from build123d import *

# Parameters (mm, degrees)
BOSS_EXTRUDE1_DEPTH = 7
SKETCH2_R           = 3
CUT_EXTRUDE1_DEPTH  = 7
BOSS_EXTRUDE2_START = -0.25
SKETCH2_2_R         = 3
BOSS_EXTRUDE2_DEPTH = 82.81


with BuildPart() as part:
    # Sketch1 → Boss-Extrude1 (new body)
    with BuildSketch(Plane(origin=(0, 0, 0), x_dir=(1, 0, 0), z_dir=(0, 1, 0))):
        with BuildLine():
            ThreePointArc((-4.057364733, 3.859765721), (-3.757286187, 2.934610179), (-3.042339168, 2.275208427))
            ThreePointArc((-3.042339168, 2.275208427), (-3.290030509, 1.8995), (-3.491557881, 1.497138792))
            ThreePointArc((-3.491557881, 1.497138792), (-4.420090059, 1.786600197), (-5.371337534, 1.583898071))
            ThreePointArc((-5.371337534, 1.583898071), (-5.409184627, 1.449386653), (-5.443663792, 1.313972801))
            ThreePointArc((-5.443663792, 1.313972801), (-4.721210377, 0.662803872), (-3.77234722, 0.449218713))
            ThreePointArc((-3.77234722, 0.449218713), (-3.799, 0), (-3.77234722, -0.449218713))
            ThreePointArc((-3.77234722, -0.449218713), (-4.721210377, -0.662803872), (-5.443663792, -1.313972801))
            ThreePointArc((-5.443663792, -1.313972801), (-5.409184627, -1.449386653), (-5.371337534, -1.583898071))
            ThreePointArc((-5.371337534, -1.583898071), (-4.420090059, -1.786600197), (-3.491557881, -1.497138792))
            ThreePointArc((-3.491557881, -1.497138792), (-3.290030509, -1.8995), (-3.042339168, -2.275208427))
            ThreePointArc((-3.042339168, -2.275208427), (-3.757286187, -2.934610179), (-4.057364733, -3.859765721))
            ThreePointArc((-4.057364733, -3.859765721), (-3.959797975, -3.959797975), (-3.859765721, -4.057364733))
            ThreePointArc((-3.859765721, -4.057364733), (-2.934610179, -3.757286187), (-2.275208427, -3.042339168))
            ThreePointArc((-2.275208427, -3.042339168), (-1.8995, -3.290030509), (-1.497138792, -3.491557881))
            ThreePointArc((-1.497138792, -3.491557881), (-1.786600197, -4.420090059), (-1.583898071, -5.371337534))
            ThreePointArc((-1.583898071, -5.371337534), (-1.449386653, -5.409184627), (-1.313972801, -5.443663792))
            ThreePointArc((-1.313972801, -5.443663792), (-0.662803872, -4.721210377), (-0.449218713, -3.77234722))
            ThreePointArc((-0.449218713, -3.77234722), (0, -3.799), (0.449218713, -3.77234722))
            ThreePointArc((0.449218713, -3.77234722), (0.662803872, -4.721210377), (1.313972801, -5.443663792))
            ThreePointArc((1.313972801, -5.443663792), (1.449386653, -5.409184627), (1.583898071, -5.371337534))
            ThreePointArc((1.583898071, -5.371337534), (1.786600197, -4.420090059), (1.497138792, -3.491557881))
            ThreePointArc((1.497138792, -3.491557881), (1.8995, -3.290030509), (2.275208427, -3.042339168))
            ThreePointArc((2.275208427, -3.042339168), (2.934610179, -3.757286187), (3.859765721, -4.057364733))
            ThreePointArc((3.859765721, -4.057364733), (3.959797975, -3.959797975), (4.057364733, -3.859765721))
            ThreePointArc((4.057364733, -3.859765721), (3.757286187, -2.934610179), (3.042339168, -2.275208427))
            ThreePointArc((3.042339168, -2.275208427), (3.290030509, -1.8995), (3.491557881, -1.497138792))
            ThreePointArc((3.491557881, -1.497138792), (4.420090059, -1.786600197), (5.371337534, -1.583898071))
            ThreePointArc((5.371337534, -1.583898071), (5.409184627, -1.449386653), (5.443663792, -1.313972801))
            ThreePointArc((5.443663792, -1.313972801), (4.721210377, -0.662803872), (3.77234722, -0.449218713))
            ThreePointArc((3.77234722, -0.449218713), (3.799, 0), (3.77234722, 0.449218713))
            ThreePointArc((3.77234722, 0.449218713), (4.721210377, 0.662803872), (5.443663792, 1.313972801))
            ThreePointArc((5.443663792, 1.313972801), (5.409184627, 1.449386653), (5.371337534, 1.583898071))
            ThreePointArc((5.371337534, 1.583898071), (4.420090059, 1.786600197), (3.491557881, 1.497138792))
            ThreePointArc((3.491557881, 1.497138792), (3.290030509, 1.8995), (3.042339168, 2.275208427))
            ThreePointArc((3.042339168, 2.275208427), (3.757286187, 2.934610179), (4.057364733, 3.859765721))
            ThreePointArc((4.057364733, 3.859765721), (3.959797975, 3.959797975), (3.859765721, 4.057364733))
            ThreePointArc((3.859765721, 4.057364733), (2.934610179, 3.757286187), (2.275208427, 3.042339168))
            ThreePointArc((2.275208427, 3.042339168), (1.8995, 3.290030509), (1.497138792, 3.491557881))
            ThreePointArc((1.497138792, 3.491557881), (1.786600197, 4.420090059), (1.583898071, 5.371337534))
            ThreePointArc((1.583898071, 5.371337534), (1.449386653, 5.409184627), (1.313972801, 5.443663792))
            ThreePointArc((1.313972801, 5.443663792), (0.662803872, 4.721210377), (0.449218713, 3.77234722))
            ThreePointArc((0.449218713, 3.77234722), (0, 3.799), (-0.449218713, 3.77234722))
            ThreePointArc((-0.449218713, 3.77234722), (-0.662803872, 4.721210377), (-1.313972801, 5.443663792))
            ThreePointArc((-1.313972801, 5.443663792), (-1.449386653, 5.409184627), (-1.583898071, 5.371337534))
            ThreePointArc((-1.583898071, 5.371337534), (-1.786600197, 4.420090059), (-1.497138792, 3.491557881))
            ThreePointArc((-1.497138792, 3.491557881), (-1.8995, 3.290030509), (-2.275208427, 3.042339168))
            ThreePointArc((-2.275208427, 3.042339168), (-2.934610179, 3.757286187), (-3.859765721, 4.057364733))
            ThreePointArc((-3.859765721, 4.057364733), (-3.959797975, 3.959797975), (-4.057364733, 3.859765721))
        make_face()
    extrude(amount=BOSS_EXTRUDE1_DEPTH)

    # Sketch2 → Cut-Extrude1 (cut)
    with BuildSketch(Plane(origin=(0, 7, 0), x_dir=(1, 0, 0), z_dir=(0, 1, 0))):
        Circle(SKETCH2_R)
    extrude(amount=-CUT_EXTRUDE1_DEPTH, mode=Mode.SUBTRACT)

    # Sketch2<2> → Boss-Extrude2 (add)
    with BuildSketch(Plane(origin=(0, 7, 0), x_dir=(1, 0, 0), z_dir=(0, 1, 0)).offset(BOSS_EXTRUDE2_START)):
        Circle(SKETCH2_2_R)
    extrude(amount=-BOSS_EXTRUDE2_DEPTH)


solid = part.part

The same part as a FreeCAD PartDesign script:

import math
import FreeCAD as App
import Part
import Sketcher

V = App.Vector

doc = App.newDocument("Part")
body = doc.addObject("PartDesign::Body", "Body")

# Sketch on XZ plane
sketch1 = doc.addObject("Sketcher::SketchObject", "Sketch")
body.addObject(sketch1)
sketch1.AttachmentSupport = (doc.XZ_Plane, [""])
sketch1.MapMode = "FlatFace"
sketch1.addGeometry([
    Part.ArcOfCircle(Part.Circle(V(-2.140546, -3.970251, 0), V(0, 0, 1), 1.92), math.radians(118.013773), math.radians(176.701123)),  # 0
    Part.ArcOfCircle(Part.Circle(V(0, 0, 0), V(0, 0, 1), 3.799), math.radians(-156.790918), math.radians(-143.209082)),  # 1
    Part.ArcOfCircle(Part.Circle(V(-4.508611, 0.131358, 0), V(0, 0, 1), 1.92), math.radians(-116.701123), math.radians(-58.013773)),  # 2
    Part.ArcOfCircle(Part.Circle(V(0.000001, 0, 0), V(0, 0, 1), 5.600001), math.radians(-166.429715), math.radians(-163.570285)),  # 3
    Part.ArcOfCircle(Part.Circle(V(-3.838893, -2.368065, 0), V(0, 0, 1), 1.92), math.radians(88.013773), math.radians(146.701123)),  # 4
    Part.ArcOfCircle(Part.Circle(V(0, 0, 0), V(0, 0, 1), 3.799), math.radians(173.209082), math.radians(186.790918)),  # 5
    Part.ArcOfCircle(Part.Circle(V(-3.838893, 2.368065, 0), V(0, 0, 1), 1.92), math.radians(-146.701123), math.radians(-88.013773)),  # 6
    Part.ArcOfCircle(Part.Circle(V(0.000001, 0, 0), V(0, 0, 1), 5.600001), math.radians(163.570285), math.radians(166.429715)),  # 7
    Part.ArcOfCircle(Part.Circle(V(-4.508611, -0.131358, 0), V(0, 0, 1), 1.92), math.radians(58.013773), math.radians(116.701123)),  # 8
    Part.ArcOfCircle(Part.Circle(V(0, 0, 0), V(0, 0, 1), 3.799), math.radians(143.209082), math.radians(156.790918)),  # 9
    Part.ArcOfCircle(Part.Circle(V(-2.140546, 3.970251, 0), V(0, 0, 1), 1.92), math.radians(-176.701123), math.radians(-118.013773)),  # 10
    Part.ArcOfCircle(Part.Circle(V(-0.000002, 0.000002, 0), V(0, 0, 1), 5.599998), math.radians(133.570284), math.radians(136.429716)),  # 11
    Part.ArcOfCircle(Part.Circle(V(-3.970251, 2.140546, 0), V(0, 0, 1), 1.92), math.radians(28.013773), math.radians(86.701123)),  # 12
    Part.ArcOfCircle(Part.Circle(V(0, 0, 0), V(0, 0, 1), 3.799), math.radians(113.209082), math.radians(126.790918)),  # 13
    Part.ArcOfCircle(Part.Circle(V(0.131358, 4.508611, 0), V(0, 0, 1), 1.92), math.radians(153.298877), math.radians(211.986227)),  # 14
    Part.ArcOfCircle(Part.Circle(V(0, -0.000001, 0), V(0, 0, 1), 5.600001), math.radians(103.570285), math.radians(106.429715)),  # 15
    Part.ArcOfCircle(Part.Circle(V(-2.368065, 3.838893, 0), V(0, 0, 1), 1.92), math.radians(-1.986227), math.radians(56.701123)),  # 16
    Part.ArcOfCircle(Part.Circle(V(0, 0, 0), V(0, 0, 1), 3.799), math.radians(83.209082), math.radians(96.790918)),  # 17
    Part.ArcOfCircle(Part.Circle(V(2.368065, 3.838893, 0), V(0, 0, 1), 1.92), math.radians(123.298877), math.radians(181.986227)),  # 18
    Part.ArcOfCircle(Part.Circle(V(0, -0.000001, 0), V(0, 0, 1), 5.600001), math.radians(73.570285), math.radians(76.429715)),  # 19
    Part.ArcOfCircle(Part.Circle(V(-0.131358, 4.508611, 0), V(0, 0, 1), 1.92), math.radians(-31.986227), math.radians(26.701123)),  # 20
    Part.ArcOfCircle(Part.Circle(V(0, 0, 0), V(0, 0, 1), 3.799), math.radians(53.209082), math.radians(66.790918)),  # 21
    Part.ArcOfCircle(Part.Circle(V(3.970251, 2.140546, 0), V(0, 0, 1), 1.92), math.radians(93.298877), math.radians(151.986227)),  # 22
    Part.ArcOfCircle(Part.Circle(V(0.000002, 0.000002, 0), V(0, 0, 1), 5.599998), math.radians(43.570284), math.radians(46.429716)),  # 23
    Part.ArcOfCircle(Part.Circle(V(2.140546, 3.970251, 0), V(0, 0, 1), 1.92), math.radians(-61.986227), math.radians(-3.298877)),  # 24
    Part.ArcOfCircle(Part.Circle(V(0, 0, 0), V(0, 0, 1), 3.799), math.radians(23.209082), math.radians(36.790918)),  # 25
    Part.ArcOfCircle(Part.Circle(V(4.508611, -0.131358, 0), V(0, 0, 1), 1.92), math.radians(63.298877), math.radians(121.986227)),  # 26
    Part.ArcOfCircle(Part.Circle(V(-0.000001, 0, 0), V(0, 0, 1), 5.600001), math.radians(13.570285), math.radians(16.429715)),  # 27
    Part.ArcOfCircle(Part.Circle(V(3.838893, 2.368065, 0), V(0, 0, 1), 1.92), math.radians(-91.986227), math.radians(-33.298877)),  # 28
    Part.ArcOfCircle(Part.Circle(V(0, 0, 0), V(0, 0, 1), 3.799), math.radians(-6.790918), math.radians(6.790918)),  # 29
    Part.ArcOfCircle(Part.Circle(V(3.838893, -2.368065, 0), V(0, 0, 1), 1.92), math.radians(33.298877), math.radians(91.986227)),  # 30
    Part.ArcOfCircle(Part.Circle(V(-0.000001, 0, 0), V(0, 0, 1), 5.600001), math.radians(-16.429715), math.radians(-13.570285)),  # 31
    Part.ArcOfCircle(Part.Circle(V(4.508611, 0.131358, 0), V(0, 0, 1), 1.92), math.radians(-121.986227), math.radians(-63.298877)),  # 32
    Part.ArcOfCircle(Part.Circle(V(0, 0, 0), V(0, 0, 1), 3.799), math.radians(-36.790918), math.radians(-23.209082)),  # 33
    Part.ArcOfCircle(Part.Circle(V(2.140546, -3.970251, 0), V(0, 0, 1), 1.92), math.radians(3.298877), math.radians(61.986227)),  # 34
    Part.ArcOfCircle(Part.Circle(V(0.000002, -0.000002, 0), V(0, 0, 1), 5.599998), math.radians(-46.429716), math.radians(-43.570284)),  # 35
    Part.ArcOfCircle(Part.Circle(V(3.970251, -2.140546, 0), V(0, 0, 1), 1.92), math.radians(-151.986227), math.radians(-93.298877)),  # 36
    Part.ArcOfCircle(Part.Circle(V(0, 0, 0), V(0, 0, 1), 3.799), math.radians(-66.790918), math.radians(-53.209082)),  # 37
    Part.ArcOfCircle(Part.Circle(V(-0.131358, -4.508611, 0), V(0, 0, 1), 1.92), math.radians(-26.701123), math.radians(31.986227)),  # 38
    Part.ArcOfCircle(Part.Circle(V(0, 0.000001, 0), V(0, 0, 1), 5.600001), math.radians(-76.429715), math.radians(-73.570285)),  # 39
    Part.ArcOfCircle(Part.Circle(V(2.368065, -3.838893, 0), V(0, 0, 1), 1.92), math.radians(178.013773), math.radians(236.701123)),  # 40
    Part.ArcOfCircle(Part.Circle(V(0, 0, 0), V(0, 0, 1), 3.799), math.radians(-96.790918), math.radians(-83.209082)),  # 41
    Part.ArcOfCircle(Part.Circle(V(-2.368065, -3.838893, 0), V(0, 0, 1), 1.92), math.radians(-56.701123), math.radians(1.986227)),  # 42
    Part.ArcOfCircle(Part.Circle(V(0, 0.000001, 0), V(0, 0, 1), 5.600001), math.radians(-106.429715), math.radians(-103.570285)),  # 43
    Part.ArcOfCircle(Part.Circle(V(0.131358, -4.508611, 0), V(0, 0, 1), 1.92), math.radians(148.013773), math.radians(206.701123)),  # 44
    Part.ArcOfCircle(Part.Circle(V(0, 0, 0), V(0, 0, 1), 3.799), math.radians(-126.790918), math.radians(-113.209082)),  # 45
    Part.ArcOfCircle(Part.Circle(V(-3.970251, -2.140546, 0), V(0, 0, 1), 1.92), math.radians(-86.701123), math.radians(-28.013773)),  # 46
    Part.ArcOfCircle(Part.Circle(V(-0.000002, -0.000002, 0), V(0, 0, 1), 5.599998), math.radians(-136.429716), math.radians(-133.570284)),  # 47
], False)
sketch1.addConstraint([
    Sketcher.Constraint("Coincident", 0, 1, 1, 2),
    Sketcher.Constraint("Coincident", 1, 1, 2, 2),
    Sketcher.Constraint("Coincident", 2, 1, 3, 2),
    Sketcher.Constraint("Coincident", 3, 1, 4, 2),
    Sketcher.Constraint("Coincident", 4, 1, 5, 2),
    Sketcher.Constraint("Coincident", 5, 1, 6, 2),
    Sketcher.Constraint("Coincident", 6, 1, 7, 2),
    Sketcher.Constraint("Coincident", 7, 1, 8, 2),
    Sketcher.Constraint("Coincident", 8, 1, 9, 2),
    Sketcher.Constraint("Coincident", 9, 1, 10, 2),
    Sketcher.Constraint("Coincident", 10, 1, 11, 2),
    Sketcher.Constraint("Coincident", 11, 1, 12, 2),
    Sketcher.Constraint("Coincident", 12, 1, 13, 2),
    Sketcher.Constraint("Coincident", 13, 1, 14, 2),
    Sketcher.Constraint("Coincident", 14, 1, 15, 2),
    Sketcher.Constraint("Coincident", 15, 1, 16, 2),
    Sketcher.Constraint("Coincident", 16, 1, 17, 2),
    Sketcher.Constraint("Coincident", 17, 1, 18, 2),
    Sketcher.Constraint("Coincident", 18, 1, 19, 2),
    Sketcher.Constraint("Coincident", 19, 1, 20, 2),
    Sketcher.Constraint("Coincident", 20, 1, 21, 2),
    Sketcher.Constraint("Coincident", 21, 1, 22, 2),
    Sketcher.Constraint("Coincident", 22, 1, 23, 2),
    Sketcher.Constraint("Coincident", 23, 1, 24, 2),
    Sketcher.Constraint("Coincident", 24, 1, 25, 2),
    Sketcher.Constraint("Coincident", 25, 1, 26, 2),
    Sketcher.Constraint("Coincident", 26, 1, 27, 2),
    Sketcher.Constraint("Coincident", 27, 1, 28, 2),
    Sketcher.Constraint("Coincident", 28, 1, 29, 2),
    Sketcher.Constraint("Coincident", 29, 1, 30, 2),
    Sketcher.Constraint("Coincident", 30, 1, 31, 2),
    Sketcher.Constraint("Coincident", 31, 1, 32, 2),
    Sketcher.Constraint("Coincident", 32, 1, 33, 2),
    Sketcher.Constraint("Coincident", 33, 1, 34, 2),
    Sketcher.Constraint("Coincident", 34, 1, 35, 2),
    Sketcher.Constraint("Coincident", 35, 1, 36, 2),
    Sketcher.Constraint("Coincident", 36, 1, 37, 2),
    Sketcher.Constraint("Coincident", 37, 1, 38, 2),
    Sketcher.Constraint("Coincident", 38, 1, 39, 2),
    Sketcher.Constraint("Coincident", 39, 1, 40, 2),
    Sketcher.Constraint("Coincident", 40, 1, 41, 2),
    Sketcher.Constraint("Coincident", 41, 1, 42, 2),
    Sketcher.Constraint("Coincident", 42, 1, 43, 2),
    Sketcher.Constraint("Coincident", 43, 1, 44, 2),
    Sketcher.Constraint("Coincident", 44, 1, 45, 2),
    Sketcher.Constraint("Coincident", 45, 1, 46, 2),
    Sketcher.Constraint("Coincident", 46, 1, 47, 2),
    Sketcher.Constraint("Coincident", 47, 1, 0, 2),
    Sketcher.Constraint("Coincident", 1, 3, -1, 1),
    Sketcher.Constraint("Coincident", 3, 3, -1, 1),
    Sketcher.Constraint("Coincident", 5, 3, -1, 1),
    Sketcher.Constraint("Coincident", 7, 3, -1, 1),
    Sketcher.Constraint("Coincident", 9, 3, -1, 1),
    Sketcher.Constraint("Coincident", 11, 3, -1, 1),
    Sketcher.Constraint("Coincident", 13, 3, -1, 1),
    Sketcher.Constraint("Coincident", 15, 3, -1, 1),
    Sketcher.Constraint("Coincident", 17, 3, -1, 1),
    Sketcher.Constraint("Coincident", 19, 3, -1, 1),
    Sketcher.Constraint("Coincident", 21, 3, -1, 1),
    Sketcher.Constraint("Coincident", 23, 3, -1, 1),
    Sketcher.Constraint("Coincident", 25, 3, -1, 1),
    Sketcher.Constraint("Coincident", 27, 3, -1, 1),
    Sketcher.Constraint("Coincident", 29, 3, -1, 1),
    Sketcher.Constraint("Coincident", 31, 3, -1, 1),
    Sketcher.Constraint("Coincident", 33, 3, -1, 1),
    Sketcher.Constraint("Coincident", 35, 3, -1, 1),
    Sketcher.Constraint("Coincident", 37, 3, -1, 1),
    Sketcher.Constraint("Coincident", 39, 3, -1, 1),
    Sketcher.Constraint("Coincident", 41, 3, -1, 1),
    Sketcher.Constraint("Coincident", 43, 3, -1, 1),
    Sketcher.Constraint("Coincident", 45, 3, -1, 1),
    Sketcher.Constraint("Coincident", 47, 3, -1, 1),
    Sketcher.Constraint("Equal", 0, 2),
    Sketcher.Constraint("Equal", 2, 4),
    Sketcher.Constraint("Equal", 1, 5),
    Sketcher.Constraint("Equal", 4, 6),
    Sketcher.Constraint("Equal", 3, 7),
    Sketcher.Constraint("Equal", 6, 8),
    Sketcher.Constraint("Equal", 5, 9),
    Sketcher.Constraint("Equal", 8, 10),
    Sketcher.Constraint("Equal", 10, 12),
    Sketcher.Constraint("Equal", 9, 13),
    Sketcher.Constraint("Equal", 12, 14),
    Sketcher.Constraint("Equal", 7, 15),
    Sketcher.Constraint("Equal", 14, 16),
    Sketcher.Constraint("Equal", 13, 17),
    Sketcher.Constraint("Equal", 16, 18),
    Sketcher.Constraint("Equal", 15, 19),
    Sketcher.Constraint("Equal", 18, 20),
    Sketcher.Constraint("Equal", 17, 21),
    Sketcher.Constraint("Equal", 20, 22),
    Sketcher.Constraint("Equal", 11, 23),
    Sketcher.Constraint("Equal", 22, 24),
    Sketcher.Constraint("Equal", 21, 25),
    Sketcher.Constraint("Equal", 24, 26),
    Sketcher.Constraint("Equal", 19, 27),
    Sketcher.Constraint("Equal", 26, 28),
    Sketcher.Constraint("Equal", 25, 29),
    Sketcher.Constraint("Equal", 28, 30),
    Sketcher.Constraint("Equal", 27, 31),
    Sketcher.Constraint("Equal", 30, 32),
    Sketcher.Constraint("Equal", 29, 33),
    Sketcher.Constraint("Equal", 32, 34),
    Sketcher.Constraint("Equal", 23, 35),
    Sketcher.Constraint("Equal", 34, 36),
    Sketcher.Constraint("Equal", 33, 37),
    Sketcher.Constraint("Equal", 36, 38),
    Sketcher.Constraint("Equal", 31, 39),
    Sketcher.Constraint("Equal", 38, 40),
    Sketcher.Constraint("Equal", 37, 41),
    Sketcher.Constraint("Equal", 40, 42),
    Sketcher.Constraint("Equal", 39, 43),
    Sketcher.Constraint("Equal", 42, 44),
    Sketcher.Constraint("Equal", 41, 45),
    Sketcher.Constraint("Equal", 44, 46),
    Sketcher.Constraint("Equal", 35, 47),
    Sketcher.Constraint("Symmetric", 0, 3, 24, 3, -1, 1),
    Sketcher.Constraint("Symmetric", 2, 3, 26, 3, -1, 1),
    Sketcher.Constraint("Symmetric", 4, 3, 28, 3, -1, 1),
    Sketcher.Constraint("Symmetric", 6, 3, 30, 3, -1, 1),
    Sketcher.Constraint("Symmetric", 8, 3, 32, 3, -1, 1),
    Sketcher.Constraint("Symmetric", 10, 3, 34, 3, -1, 1),
    Sketcher.Constraint("Symmetric", 12, 3, 36, 3, -1, 1),
    Sketcher.Constraint("Symmetric", 14, 3, 38, 3, -1, 1),
    Sketcher.Constraint("Symmetric", 16, 3, 40, 3, -1, 1),
    Sketcher.Constraint("Symmetric", 18, 3, 42, 3, -1, 1),
    Sketcher.Constraint("Symmetric", 20, 3, 44, 3, -1, 1),
    Sketcher.Constraint("Symmetric", 22, 3, 46, 3, -1, 1),
    Sketcher.Constraint("Symmetric", 16, 3, 18, 3, -2),
    Sketcher.Constraint("Symmetric", 14, 3, 20, 3, -2),
    Sketcher.Constraint("Symmetric", 12, 3, 22, 3, -2),
    Sketcher.Constraint("Symmetric", 10, 3, 24, 3, -2),
    Sketcher.Constraint("Symmetric", 8, 3, 26, 3, -2),
    Sketcher.Constraint("Symmetric", 6, 3, 28, 3, -2),
    Sketcher.Constraint("Radius", 3, 5.600001),
    Sketcher.Constraint("Radius", 0, 1.92),
    Sketcher.Constraint("Radius", 1, 3.799),
    Sketcher.Constraint("Radius", 11, 5.599998),
    Sketcher.Constraint("DistanceY", 2, 1, -1, 1, 1.583898),
    Sketcher.Constraint("DistanceX", 14, 1, -1, 1, 1.583898),
    Sketcher.Constraint("DistanceY", 0, 3, -1, 1, 3.970251),
    Sketcher.Constraint("DistanceX", 2, 3, -1, 1, 4.508611),
    Sketcher.Constraint("DistanceX", 12, 3, -1, 1, 3.970251),
    Sketcher.Constraint("DistanceX", -1, 1, 14, 3, 0.131358),
    Sketcher.Constraint("DistanceX", 0, 1, -1, 1, 3.042339),
    Sketcher.Constraint("DistanceY", 4, 1, -1, 1, 0.449219),
    Sketcher.Constraint("DistanceX", 12, 1, -1, 1, 2.275208),
    Sketcher.Constraint("DistanceX", 16, 1, -1, 1, 0.449219),
    Sketcher.Constraint("DistanceX", 4, 3, -1, 1, 3.838893),
    Sketcher.Constraint("DistanceX", 16, 3, -1, 1, 2.368065),
])
pad1 = doc.addObject("PartDesign::Pad", "Pad")
body.addObject(pad1)
pad1.Profile = sketch1
pad1.Length = 7
pad1.Reversed = True

# Sketch on XZ plane
sketch2 = doc.addObject("Sketcher::SketchObject", "Sketch001")
body.addObject(sketch2)
sketch2.AttachmentSupport = (doc.XZ_Plane, [""])
sketch2.MapMode = "FlatFace"
sketch2.AttachmentOffset = App.Placement(V(0, 0, -7), App.Rotation())
sketch2.addGeometry(Part.Circle(V(0, 0, 0), V(0, 0, 1), 3), False)
sketch2.addConstraint([
    Sketcher.Constraint("Coincident", 0, 3, -1, 1),
    Sketcher.Constraint("Diameter", 0, 6.0),
])
pocket1 = doc.addObject("PartDesign::Pocket", "Pocket")
body.addObject(pocket1)
pocket1.Profile = sketch2
pocket1.Length = 7
pocket1.Reversed = True

# Sketch on XZ plane
sketch3 = doc.addObject("Sketcher::SketchObject", "Sketch002")
body.addObject(sketch3)
sketch3.AttachmentSupport = (doc.XZ_Plane, [""])
sketch3.MapMode = "FlatFace"
sketch3.AttachmentOffset = App.Placement(V(0, 0, -6.75), App.Rotation())
sketch3.addGeometry(Part.Circle(V(0, 0, 0), V(0, 0, 1), 3), False)
sketch3.addConstraint([
    Sketcher.Constraint("Coincident", 0, 3, -1, 1),
    Sketcher.Constraint("Diameter", 0, 6.0),
])
pad2 = doc.addObject("PartDesign::Pad", "Pad001")
body.addObject(pad2)
pad2.Profile = sketch3
pad2.Length = 82.81

doc.recompute()
